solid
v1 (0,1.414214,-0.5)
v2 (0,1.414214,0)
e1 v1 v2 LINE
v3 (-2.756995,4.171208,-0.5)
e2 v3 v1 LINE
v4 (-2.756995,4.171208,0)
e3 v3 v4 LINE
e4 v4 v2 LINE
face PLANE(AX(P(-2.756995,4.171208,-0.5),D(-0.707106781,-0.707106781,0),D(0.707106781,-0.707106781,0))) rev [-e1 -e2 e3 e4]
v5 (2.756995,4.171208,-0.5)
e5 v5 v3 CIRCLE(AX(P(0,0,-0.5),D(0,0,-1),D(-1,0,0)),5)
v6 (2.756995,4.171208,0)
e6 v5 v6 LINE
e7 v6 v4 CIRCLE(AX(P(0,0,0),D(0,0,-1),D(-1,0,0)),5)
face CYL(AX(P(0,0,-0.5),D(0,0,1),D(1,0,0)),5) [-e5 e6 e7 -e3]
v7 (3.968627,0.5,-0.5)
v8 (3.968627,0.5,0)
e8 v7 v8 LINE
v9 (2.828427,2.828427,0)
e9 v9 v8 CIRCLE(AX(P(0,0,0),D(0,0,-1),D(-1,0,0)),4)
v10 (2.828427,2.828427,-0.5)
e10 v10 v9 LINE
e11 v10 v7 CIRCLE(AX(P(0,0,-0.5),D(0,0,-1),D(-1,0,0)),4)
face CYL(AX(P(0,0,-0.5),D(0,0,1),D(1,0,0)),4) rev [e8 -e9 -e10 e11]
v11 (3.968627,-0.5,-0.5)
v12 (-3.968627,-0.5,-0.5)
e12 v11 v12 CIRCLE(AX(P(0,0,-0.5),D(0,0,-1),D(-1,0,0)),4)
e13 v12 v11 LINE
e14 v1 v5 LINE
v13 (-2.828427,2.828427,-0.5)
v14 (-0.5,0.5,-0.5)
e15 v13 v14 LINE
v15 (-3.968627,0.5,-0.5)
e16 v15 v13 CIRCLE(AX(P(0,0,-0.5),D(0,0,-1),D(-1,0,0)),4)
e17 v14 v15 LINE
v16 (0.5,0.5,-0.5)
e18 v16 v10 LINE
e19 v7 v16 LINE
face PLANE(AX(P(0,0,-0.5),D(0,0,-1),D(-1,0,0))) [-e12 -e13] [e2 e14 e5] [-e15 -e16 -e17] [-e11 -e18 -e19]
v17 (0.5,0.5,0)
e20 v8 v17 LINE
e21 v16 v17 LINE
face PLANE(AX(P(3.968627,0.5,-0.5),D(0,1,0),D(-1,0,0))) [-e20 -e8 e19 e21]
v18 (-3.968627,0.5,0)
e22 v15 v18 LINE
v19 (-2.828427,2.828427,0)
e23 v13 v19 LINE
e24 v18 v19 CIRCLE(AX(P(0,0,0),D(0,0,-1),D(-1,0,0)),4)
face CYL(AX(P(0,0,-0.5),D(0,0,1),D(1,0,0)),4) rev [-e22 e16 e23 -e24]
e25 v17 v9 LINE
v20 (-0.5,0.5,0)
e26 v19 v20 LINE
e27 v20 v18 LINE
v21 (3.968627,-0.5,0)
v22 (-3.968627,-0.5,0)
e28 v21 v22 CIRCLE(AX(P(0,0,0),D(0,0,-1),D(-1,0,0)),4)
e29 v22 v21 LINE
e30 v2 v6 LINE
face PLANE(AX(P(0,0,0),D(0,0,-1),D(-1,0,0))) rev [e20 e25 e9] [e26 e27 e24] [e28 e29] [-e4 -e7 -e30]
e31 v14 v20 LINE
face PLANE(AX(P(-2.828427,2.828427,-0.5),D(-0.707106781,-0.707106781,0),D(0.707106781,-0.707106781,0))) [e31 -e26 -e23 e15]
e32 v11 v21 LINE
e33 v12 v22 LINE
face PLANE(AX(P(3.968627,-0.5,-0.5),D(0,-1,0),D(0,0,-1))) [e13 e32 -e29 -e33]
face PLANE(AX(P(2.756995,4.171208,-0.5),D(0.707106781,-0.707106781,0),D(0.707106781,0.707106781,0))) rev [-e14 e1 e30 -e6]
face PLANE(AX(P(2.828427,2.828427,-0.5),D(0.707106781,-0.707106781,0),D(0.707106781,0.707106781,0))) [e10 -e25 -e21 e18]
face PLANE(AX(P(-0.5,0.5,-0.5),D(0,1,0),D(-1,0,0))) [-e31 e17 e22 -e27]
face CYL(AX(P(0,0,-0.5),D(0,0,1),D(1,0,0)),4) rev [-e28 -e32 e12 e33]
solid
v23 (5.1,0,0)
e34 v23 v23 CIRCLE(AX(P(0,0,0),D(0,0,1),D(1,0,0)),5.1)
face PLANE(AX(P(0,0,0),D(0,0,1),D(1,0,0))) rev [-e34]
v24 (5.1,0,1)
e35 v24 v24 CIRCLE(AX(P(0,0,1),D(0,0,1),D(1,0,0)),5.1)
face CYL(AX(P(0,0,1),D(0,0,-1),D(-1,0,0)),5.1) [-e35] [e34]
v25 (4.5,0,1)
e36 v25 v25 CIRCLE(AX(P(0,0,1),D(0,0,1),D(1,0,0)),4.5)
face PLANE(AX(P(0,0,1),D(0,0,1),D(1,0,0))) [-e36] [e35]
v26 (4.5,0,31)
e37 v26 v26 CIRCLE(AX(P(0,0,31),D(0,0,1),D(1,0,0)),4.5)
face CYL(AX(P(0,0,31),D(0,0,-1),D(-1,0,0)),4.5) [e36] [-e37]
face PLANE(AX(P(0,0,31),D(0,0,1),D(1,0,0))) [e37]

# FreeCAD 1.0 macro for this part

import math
import FreeCAD as App
import Part
import Sketcher
from FreeCAD import Vector

doc = App.newDocument("Part")
body = doc.addObject("PartDesign::Body", "Body")

sketch1 = body.newObject("Sketcher::SketchObject", "Sketch")
sketch1.AttachmentSupport = (doc.getObject("XY_Plane"), [""])
sketch1.MapMode = "FlatFace"
sketch1.addGeometry(Part.Circle(Vector(0, 0, 0), Vector(0, 0, 1), 5), False)
sketch1.addConstraint([
    Sketcher.Constraint("Coincident", 0, 3, -1, 1),
    Sketcher.Constraint("Diameter", 0, 10.2),
])
pad1 = body.newObject("PartDesign::Pad", "Pad")
pad1.Profile = sketch1
pad1.Length = 1

sketch2 = body.newObject("Sketcher::SketchObject", "Sketch001")
sketch2.AttachmentSupport = (doc.getObject("XY_Plane"), [""])
sketch2.MapMode = "FlatFace"
sketch2.AttachmentOffset = App.Placement(Vector(0, 0, 1), App.Rotation())
sketch2.addGeometry(Part.Circle(Vector(0, 0, 0), Vector(0, 0, 1), 4.5), False)
sketch2.addConstraint([
    Sketcher.Constraint("Coincident", 0, 3, -1, 1),
    Sketcher.Constraint("Diameter", 0, 9.0),
])
pad2 = body.newObject("PartDesign::Pad", "Pad001")
pad2.Profile = sketch2
pad2.Length = 30
body2 = doc.addObject("PartDesign::Body", "Body001")

sketch3 = body2.newObject("Sketcher::SketchObject", "Sketch002")
sketch3.AttachmentSupport = (doc.getObject("XY_Plane001"), [""])
sketch3.MapMode = "FlatFace"
sketch3.addGeometry([
    Part.LineSegment(Vector(-2.8, 4.2, 0), Vector(0, 1.4, 0)),
    Part.LineSegment(Vector(0, 1.4, 0), Vector(2.8, 4.2, 0)),
    Part.ArcOfCircle(Part.Circle(Vector(0, 0, 0), Vector(0, 0, 1), 5), math.radians(123), math.radians(417)),
    Part.ArcOfCircle(Part.Circle(Vector(0, 0, 0), Vector(0, 0, 1), 4), math.radians(-173), math.radians(-7)),
    Part.LineSegment(Vector(4, -0.5, 0), Vector(-4, -0.5, 0)),
    Part.LineSegment(Vector(0.5, 0.5, 0), Vector(4, 0.5, 0)),
    Part.ArcOfCircle(Part.Circle(Vector(0, 0, 0), Vector(0, 0, 1), 4), math.radians(7), math.radians(45)),
    Part.LineSegment(Vector(2.8, 2.8, 0), Vector(0.5, 0.5, 0)),
    Part.LineSegment(Vector(-4, 0.5, 0), Vector(-0.5, 0.5, 0)),
    Part.LineSegment(Vector(-0.5, 0.5, 0), Vector(-2.8, 2.8, 0)),
    Part.ArcOfCircle(Part.Circle(Vector(0, 0, 0), Vector(0, 0, 1), 4), math.radians(135), math.radians(173)),
], False)
sketch3.addConstraint([
    Sketcher.Constraint("Coincident", 0, 2, 1, 1),
    Sketcher.Constraint("Coincident", 1, 2, 2, 2),
    Sketcher.Constraint("Coincident", 2, 1, 0, 1),
    Sketcher.Constraint("Coincident", 3, 1, 4, 2),
    Sketcher.Constraint("Coincident", 4, 1, 3, 2),
    Sketcher.Constraint("Coincident", 5, 2, 6, 1),
    Sketcher.Constraint("Coincident", 6, 2, 7, 1),
    Sketcher.Constraint("Coincident", 7, 2, 5, 1),
    Sketcher.Constraint("Coincident", 8, 2, 9, 1),
    Sketcher.Constraint("Coincident", 9, 2, 10, 1),
    Sketcher.Constraint("Coincident", 10, 2, 8, 1),
    Sketcher.Constraint("Horizontal", 4),
    Sketcher.Constraint("Horizontal", 5),
    Sketcher.Constraint("Horizontal", 8),
    Sketcher.Constraint("Coincident", 2, 3, -1, 1),
    Sketcher.Constraint("Coincident", 3, 3, -1, 1),
    Sketcher.Constraint("Coincident", 6, 3, -1, 1),
    Sketcher.Constraint("Coincident", 10, 3, -1, 1),
    Sketcher.Constraint("Equal", 3, 6),
    Sketcher.Constraint("Equal", 6, 10),
    Sketcher.Constraint("Symmetric", 7, 2, 8, 2, -2),
    Sketcher.Constraint("PointOnObject", 0, 2, -2),
    Sketcher.Constraint("Perpendicular", 0, 1),
    Sketcher.Constraint("Parallel", 1, 7),
    Sketcher.Constraint("Perpendicular", 7, 9),
    Sketcher.Constraint("Horizontal", 1, 2, 2, 1),
    Sketcher.Constraint("Vertical", 4, 1, 5, 2),
    Sketcher.Constraint("Radius", 2, 5.0),
    Sketcher.Constraint("Radius", 3, 4.0),
    Sketcher.Constraint("DistanceY", 4, 1, 5, 2, 1.0),
    Sketcher.Constraint("DistanceX", 8, 2, 7, 2, 1.0),
    Sketcher.Constraint("Distance", 0, 3.898979),
])
pad3 = body2.newObject("PartDesign::Pad", "Pad002")
pad3.Profile = sketch3
pad3.Length = 0.5
pad3.Reversed = True

doc.recompute()
